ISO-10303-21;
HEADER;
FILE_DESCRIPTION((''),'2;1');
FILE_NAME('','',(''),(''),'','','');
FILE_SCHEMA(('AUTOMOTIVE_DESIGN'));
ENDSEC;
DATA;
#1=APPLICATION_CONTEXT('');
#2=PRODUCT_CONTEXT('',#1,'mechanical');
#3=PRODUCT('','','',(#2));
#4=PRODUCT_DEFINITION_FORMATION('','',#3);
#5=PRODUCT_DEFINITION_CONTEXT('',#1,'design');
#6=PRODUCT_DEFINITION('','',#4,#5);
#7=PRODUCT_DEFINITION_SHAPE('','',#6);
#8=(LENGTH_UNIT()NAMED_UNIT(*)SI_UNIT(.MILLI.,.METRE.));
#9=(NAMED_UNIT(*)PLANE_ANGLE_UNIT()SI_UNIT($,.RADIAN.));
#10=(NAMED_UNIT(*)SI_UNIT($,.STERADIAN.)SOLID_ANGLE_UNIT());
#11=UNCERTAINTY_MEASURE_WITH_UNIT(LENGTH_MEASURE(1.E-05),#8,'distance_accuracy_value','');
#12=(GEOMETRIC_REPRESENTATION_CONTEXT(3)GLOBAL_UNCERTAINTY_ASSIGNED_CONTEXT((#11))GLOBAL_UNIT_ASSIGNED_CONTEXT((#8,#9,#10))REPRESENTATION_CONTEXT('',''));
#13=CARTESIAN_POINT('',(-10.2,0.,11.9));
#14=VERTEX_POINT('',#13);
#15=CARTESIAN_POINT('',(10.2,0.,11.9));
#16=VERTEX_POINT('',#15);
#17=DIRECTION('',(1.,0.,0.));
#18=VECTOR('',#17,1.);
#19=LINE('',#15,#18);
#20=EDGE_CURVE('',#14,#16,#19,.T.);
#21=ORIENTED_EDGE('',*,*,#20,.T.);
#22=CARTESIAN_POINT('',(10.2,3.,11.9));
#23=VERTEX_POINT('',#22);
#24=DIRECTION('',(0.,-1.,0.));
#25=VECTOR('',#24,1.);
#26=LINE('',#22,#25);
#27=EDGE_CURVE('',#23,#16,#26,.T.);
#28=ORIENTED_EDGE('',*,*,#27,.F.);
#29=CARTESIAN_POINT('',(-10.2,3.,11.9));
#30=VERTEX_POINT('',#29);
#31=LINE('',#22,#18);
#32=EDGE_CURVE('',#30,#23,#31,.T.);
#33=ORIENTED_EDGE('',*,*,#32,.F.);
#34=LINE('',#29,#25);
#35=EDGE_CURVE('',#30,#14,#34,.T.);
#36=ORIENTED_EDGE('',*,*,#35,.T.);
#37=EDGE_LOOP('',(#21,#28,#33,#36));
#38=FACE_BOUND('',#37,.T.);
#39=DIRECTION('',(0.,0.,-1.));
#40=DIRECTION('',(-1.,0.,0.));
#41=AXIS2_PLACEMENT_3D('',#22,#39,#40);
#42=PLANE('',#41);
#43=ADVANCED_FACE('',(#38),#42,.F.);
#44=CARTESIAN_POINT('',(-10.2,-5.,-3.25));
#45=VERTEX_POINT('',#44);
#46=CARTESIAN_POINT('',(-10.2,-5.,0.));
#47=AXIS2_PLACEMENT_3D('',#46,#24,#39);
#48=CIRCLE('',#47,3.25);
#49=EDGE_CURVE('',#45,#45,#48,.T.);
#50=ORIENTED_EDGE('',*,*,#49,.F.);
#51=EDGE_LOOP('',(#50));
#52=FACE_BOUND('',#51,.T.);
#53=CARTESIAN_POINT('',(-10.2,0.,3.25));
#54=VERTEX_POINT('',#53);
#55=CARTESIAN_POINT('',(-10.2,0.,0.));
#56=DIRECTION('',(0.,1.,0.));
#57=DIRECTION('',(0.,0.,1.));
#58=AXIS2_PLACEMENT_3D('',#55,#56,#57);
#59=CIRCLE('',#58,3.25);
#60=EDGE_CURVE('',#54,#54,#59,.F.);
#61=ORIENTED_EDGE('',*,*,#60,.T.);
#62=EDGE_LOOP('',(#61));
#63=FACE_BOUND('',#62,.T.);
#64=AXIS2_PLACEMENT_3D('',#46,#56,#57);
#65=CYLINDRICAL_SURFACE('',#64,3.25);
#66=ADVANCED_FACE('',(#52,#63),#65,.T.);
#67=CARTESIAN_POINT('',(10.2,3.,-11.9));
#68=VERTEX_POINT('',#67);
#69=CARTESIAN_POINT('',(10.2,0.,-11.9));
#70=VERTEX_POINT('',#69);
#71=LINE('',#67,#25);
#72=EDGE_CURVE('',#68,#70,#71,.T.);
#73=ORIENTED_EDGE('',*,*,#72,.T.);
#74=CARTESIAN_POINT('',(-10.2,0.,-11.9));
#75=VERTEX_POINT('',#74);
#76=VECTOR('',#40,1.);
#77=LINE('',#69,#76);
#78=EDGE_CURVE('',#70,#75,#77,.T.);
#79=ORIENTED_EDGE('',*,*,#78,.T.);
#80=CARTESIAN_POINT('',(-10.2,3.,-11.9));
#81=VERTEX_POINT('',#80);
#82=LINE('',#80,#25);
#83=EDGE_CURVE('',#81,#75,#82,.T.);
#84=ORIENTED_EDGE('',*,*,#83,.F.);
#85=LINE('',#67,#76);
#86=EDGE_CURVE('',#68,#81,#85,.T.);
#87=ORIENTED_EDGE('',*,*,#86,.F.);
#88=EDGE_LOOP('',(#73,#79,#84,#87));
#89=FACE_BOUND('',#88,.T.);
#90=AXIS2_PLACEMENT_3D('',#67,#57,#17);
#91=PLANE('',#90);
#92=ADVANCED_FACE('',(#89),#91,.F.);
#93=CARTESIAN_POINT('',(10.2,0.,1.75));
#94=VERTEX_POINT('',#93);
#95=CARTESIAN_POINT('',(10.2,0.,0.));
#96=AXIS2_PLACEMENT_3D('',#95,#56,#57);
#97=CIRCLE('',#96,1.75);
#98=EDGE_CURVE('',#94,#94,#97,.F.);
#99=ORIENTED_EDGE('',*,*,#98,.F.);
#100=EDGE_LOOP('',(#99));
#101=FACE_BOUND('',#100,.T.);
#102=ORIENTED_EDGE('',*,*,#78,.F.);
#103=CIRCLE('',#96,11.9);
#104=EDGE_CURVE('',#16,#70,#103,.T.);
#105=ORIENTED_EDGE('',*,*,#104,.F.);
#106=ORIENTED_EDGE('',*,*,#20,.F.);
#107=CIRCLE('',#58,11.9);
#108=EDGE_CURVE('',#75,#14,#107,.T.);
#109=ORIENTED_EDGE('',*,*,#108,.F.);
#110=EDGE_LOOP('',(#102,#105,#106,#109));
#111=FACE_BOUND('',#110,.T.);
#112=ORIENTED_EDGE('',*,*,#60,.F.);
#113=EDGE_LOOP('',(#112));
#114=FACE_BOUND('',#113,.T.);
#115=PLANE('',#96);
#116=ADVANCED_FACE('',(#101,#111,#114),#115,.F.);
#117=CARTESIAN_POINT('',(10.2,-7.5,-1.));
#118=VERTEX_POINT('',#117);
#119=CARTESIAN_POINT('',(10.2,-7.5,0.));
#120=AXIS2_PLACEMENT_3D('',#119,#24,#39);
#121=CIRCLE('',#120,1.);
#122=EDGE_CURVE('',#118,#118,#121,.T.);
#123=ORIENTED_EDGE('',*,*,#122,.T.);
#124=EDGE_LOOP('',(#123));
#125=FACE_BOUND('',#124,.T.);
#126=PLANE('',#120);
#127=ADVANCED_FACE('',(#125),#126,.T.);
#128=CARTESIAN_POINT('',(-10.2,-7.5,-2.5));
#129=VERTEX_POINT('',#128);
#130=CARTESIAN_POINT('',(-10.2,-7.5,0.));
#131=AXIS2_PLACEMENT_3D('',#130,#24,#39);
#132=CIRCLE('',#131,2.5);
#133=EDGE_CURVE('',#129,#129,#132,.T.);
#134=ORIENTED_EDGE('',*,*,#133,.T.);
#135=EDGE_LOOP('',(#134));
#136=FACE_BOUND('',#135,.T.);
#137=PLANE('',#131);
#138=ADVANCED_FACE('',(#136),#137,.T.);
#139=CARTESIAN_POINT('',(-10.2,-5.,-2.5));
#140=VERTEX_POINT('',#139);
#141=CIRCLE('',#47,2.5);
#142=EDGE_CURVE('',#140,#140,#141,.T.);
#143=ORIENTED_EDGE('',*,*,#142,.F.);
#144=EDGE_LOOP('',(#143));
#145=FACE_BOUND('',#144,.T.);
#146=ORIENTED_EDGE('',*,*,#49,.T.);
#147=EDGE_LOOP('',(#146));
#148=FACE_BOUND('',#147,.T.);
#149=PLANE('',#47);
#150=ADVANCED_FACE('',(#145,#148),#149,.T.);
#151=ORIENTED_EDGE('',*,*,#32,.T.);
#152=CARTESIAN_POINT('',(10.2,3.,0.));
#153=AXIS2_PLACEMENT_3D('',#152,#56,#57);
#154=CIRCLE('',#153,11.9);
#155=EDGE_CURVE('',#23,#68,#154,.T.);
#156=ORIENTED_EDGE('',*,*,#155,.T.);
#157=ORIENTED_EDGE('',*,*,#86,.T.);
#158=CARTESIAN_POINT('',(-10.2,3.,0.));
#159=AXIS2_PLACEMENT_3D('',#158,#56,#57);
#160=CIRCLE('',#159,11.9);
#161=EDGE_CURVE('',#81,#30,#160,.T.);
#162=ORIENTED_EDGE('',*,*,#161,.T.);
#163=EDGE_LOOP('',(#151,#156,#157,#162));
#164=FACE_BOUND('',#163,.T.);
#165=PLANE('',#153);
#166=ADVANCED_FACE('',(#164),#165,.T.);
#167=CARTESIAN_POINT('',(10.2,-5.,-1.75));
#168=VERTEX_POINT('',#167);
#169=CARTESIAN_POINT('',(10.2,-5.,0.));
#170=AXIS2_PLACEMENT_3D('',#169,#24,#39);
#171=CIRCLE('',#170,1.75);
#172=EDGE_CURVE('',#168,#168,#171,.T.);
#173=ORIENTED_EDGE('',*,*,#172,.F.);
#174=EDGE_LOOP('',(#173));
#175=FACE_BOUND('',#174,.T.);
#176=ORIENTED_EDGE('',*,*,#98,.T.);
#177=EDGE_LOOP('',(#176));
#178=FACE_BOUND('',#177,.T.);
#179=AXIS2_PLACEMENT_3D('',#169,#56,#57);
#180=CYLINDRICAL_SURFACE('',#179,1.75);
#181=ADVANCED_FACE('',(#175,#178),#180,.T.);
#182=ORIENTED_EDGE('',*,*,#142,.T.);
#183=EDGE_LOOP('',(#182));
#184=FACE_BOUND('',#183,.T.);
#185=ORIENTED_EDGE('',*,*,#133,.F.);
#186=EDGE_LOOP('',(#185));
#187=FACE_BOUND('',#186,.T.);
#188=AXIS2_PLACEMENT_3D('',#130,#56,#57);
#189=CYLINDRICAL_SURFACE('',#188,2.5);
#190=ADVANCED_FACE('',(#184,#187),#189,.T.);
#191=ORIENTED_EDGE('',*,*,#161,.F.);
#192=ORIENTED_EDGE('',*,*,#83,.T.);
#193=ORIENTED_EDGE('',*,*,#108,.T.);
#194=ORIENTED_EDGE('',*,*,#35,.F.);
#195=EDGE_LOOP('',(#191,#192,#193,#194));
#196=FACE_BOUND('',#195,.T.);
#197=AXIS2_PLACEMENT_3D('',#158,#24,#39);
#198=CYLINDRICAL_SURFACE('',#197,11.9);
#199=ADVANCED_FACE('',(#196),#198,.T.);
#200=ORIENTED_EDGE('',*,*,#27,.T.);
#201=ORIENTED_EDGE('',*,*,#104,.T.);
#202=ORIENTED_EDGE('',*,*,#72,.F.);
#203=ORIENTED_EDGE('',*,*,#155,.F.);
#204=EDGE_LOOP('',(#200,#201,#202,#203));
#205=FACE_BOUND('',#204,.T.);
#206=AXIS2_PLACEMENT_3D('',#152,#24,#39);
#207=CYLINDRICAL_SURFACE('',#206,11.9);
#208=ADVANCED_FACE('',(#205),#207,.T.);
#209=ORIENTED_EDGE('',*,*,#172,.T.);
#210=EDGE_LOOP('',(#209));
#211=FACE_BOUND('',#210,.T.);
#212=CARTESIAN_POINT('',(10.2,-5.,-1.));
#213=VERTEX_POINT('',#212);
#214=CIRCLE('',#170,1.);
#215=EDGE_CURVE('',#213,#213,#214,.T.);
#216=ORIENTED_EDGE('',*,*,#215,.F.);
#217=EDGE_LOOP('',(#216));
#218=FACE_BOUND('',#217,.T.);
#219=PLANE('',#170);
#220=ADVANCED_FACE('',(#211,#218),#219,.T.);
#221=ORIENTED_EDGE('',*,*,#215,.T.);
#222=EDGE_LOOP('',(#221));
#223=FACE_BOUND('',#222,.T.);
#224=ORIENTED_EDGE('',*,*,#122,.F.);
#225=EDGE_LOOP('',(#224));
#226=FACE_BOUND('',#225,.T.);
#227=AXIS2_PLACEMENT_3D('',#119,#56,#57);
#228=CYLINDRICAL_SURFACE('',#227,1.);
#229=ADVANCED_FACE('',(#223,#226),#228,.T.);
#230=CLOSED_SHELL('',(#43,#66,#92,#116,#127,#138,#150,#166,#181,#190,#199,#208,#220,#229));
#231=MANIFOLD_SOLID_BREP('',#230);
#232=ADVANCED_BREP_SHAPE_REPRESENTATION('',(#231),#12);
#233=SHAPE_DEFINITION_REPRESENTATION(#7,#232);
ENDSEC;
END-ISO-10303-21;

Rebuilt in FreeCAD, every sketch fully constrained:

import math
import FreeCAD as App
import Part
import Sketcher

doc = App.newDocument("Part")
body = doc.addObject("PartDesign::Body", "Body")

# Sketch on XZ plane
sketch1 = body.newObject("Sketcher::SketchObject", "Sketch")
sketch1.AttachmentSupport = (doc.getObject("XZ_Plane"), [""])
sketch1.MapMode = "FlatFace"
sketch1.addGeometry(Part.LineSegment(App.Vector(-10.2, 11.9, 0), App.Vector(10.2, 11.9, 0)), False)
sketch1.addGeometry(Part.ArcOfCircle(Part.Circle(App.Vector(10.2, 0, 0), App.Vector(0, 0, 1), 11.9), math.radians(-90), math.radians(90)), False)
sketch1.addGeometry(Part.LineSegment(App.Vector(10.2, -11.9, 0), App.Vector(-10.2, -11.9, 0)), False)
sketch1.addGeometry(Part.ArcOfCircle(Part.Circle(App.Vector(-10.2, 0, 0), App.Vector(0, 0, 1), 11.9), math.radians(90), math.radians(270)), False)
sketch1.addConstraint(Sketcher.Constraint("Tangent", 0, 2, 1, 2))
sketch1.addConstraint(Sketcher.Constraint("Tangent", 1, 1, 2, 1))
sketch1.addConstraint(Sketcher.Constraint("Tangent", 2, 2, 3, 2))
sketch1.addConstraint(Sketcher.Constraint("Tangent", 3, 1, 0, 1))
sketch1.addConstraint(Sketcher.Constraint("Horizontal", 0))
sketch1.addConstraint(Sketcher.Constraint("Horizontal", 2))
sketch1.addConstraint(Sketcher.Constraint("Symmetric", 1, 3, 3, 3, -1, 1))
sketch1.addConstraint(Sketcher.Constraint("Radius", 1, 11.9))
sketch1.addConstraint(Sketcher.Constraint("DistanceX", 0, 1, 0, 2, 20.4))
pad1 = body.newObject("PartDesign::Pad", "Pad")
pad1.Profile = sketch1
pad1.Length = 3
pad1.Reversed = True

# Sketch on XZ plane
sketch2 = body.newObject("Sketcher::SketchObject", "Sketch001")
sketch2.AttachmentSupport = (doc.getObject("XZ_Plane"), [""])
sketch2.MapMode = "FlatFace"
sketch2.addGeometry(Part.Circle(App.Vector(-10.2, 0, 0), App.Vector(0, 0, 1), 3.25), False)
sketch2.addGeometry(Part.Circle(App.Vector(10.2, 0, 0), App.Vector(0, 0, 1), 1.75), False)
sketch2.addConstraint(Sketcher.Constraint("Symmetric", 0, 3, 1, 3, -1, 1))
sketch2.addConstraint(Sketcher.Constraint("PointOnObject", 0, 3, -1))
sketch2.addConstraint(Sketcher.Constraint("Diameter", 0, 6.5))
sketch2.addConstraint(Sketcher.Constraint("Diameter", 1, 3.5))
sketch2.addConstraint(Sketcher.Constraint("DistanceX", 0, 3, -1, 1, 10.2))
pad2 = body.newObject("PartDesign::Pad", "Pad001")
pad2.Profile = sketch2
pad2.Length = 5

# Sketch on XZ plane
sketch3 = body.newObject("Sketcher::SketchObject", "Sketch002")
sketch3.AttachmentSupport = (doc.getObject("XZ_Plane"), [""])
sketch3.MapMode = "FlatFace"
sketch3.AttachmentOffset = App.Placement(App.Vector(0, 0, 5), App.Rotation())
sketch3.addGeometry(Part.Circle(App.Vector(-10.2, 0, 0), App.Vector(0, 0, 1), 2.5), False)
sketch3.addGeometry(Part.Circle(App.Vector(10.2, 0, 0), App.Vector(0, 0, 1), 1), False)
sketch3.addConstraint(Sketcher.Constraint("Symmetric", 0, 3, 1, 3, -1, 1))
sketch3.addConstraint(Sketcher.Constraint("PointOnObject", 0, 3, -1))
sketch3.addConstraint(Sketcher.Constraint("Diameter", 0, 5.0))
sketch3.addConstraint(Sketcher.Constraint("Diameter", 1, 2.0))
sketch3.addConstraint(Sketcher.Constraint("DistanceX", 0, 3, -1, 1, 10.2))
pad3 = body.newObject("PartDesign::Pad", "Pad002")
pad3.Profile = sketch3
pad3.Length = 2.5

doc.recompute()
